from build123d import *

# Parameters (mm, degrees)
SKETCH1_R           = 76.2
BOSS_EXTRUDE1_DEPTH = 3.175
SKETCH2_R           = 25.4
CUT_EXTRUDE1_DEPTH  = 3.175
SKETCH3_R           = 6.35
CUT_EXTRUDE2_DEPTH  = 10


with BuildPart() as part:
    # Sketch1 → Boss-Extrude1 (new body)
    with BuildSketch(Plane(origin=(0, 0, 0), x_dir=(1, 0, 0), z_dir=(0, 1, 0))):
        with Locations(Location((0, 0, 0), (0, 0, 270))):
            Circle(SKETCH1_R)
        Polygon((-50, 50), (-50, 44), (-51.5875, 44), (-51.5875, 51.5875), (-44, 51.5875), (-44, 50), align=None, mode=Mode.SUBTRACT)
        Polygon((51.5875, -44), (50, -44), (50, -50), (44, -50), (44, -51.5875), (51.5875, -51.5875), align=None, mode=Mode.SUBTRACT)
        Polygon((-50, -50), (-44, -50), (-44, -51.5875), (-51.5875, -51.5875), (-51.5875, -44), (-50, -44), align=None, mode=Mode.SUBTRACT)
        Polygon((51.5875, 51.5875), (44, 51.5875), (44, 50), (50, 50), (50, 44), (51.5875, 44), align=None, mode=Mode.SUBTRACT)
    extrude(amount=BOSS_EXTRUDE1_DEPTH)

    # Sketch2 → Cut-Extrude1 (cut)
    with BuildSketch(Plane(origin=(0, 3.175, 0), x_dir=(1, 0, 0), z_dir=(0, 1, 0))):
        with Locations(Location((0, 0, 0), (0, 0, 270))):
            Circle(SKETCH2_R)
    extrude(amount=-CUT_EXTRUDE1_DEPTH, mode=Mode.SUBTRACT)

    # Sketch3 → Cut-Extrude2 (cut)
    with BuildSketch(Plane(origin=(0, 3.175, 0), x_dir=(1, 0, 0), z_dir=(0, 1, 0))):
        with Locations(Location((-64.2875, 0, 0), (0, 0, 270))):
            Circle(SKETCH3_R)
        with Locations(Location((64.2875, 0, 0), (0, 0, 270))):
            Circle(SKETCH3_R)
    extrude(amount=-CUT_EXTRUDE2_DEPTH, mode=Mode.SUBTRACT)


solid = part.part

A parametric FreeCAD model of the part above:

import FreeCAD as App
import Part
import Sketcher

V = App.Vector
Q = App.Units.Quantity

doc = App.newDocument("Part")
body = doc.addObject("PartDesign::Body", "Body")

# Sketch on XZ plane
sketch1 = body.newObject("Sketcher::SketchObject", "Sketch")
sketch1.AttachmentSupport = (doc.getObject("XZ_Plane"), [""])
sketch1.MapMode = "FlatFace"
sketch1.addGeometry([
    Part.Circle(V(0, 0, 0), V(0, 0, 1), 76.2),  # 0
    Part.LineSegment(V(-44, -50, 0), V(-50, -50, 0)),  # 1
    Part.LineSegment(V(-50, -50, 0), V(-50, -44, 0)),  # 2
    Part.LineSegment(V(-50, -44, 0), V(-51.6, -44, 0)),  # 3
    Part.LineSegment(V(-51.6, -44, 0), V(-51.6, -51.6, 0)),  # 4
    Part.LineSegment(V(-51.6, -51.6, 0), V(-44, -51.6, 0)),  # 5
    Part.LineSegment(V(-44, -51.6, 0), V(-44, -50, 0)),  # 6
    Part.LineSegment(V(-50, 44, 0), V(-50, 50, 0)),  # 7
    Part.LineSegment(V(-50, 50, 0), V(-44, 50, 0)),  # 8
    Part.LineSegment(V(-44, 50, 0), V(-44, 51.6, 0)),  # 9
    Part.LineSegment(V(-44, 51.6, 0), V(-51.6, 51.6, 0)),  # 10
    Part.LineSegment(V(-51.6, 51.6, 0), V(-51.6, 44, 0)),  # 11
    Part.LineSegment(V(-51.6, 44, 0), V(-50, 44, 0)),  # 12
    Part.LineSegment(V(44, -51.6, 0), V(51.6, -51.6, 0)),  # 13
    Part.LineSegment(V(51.6, -51.6, 0), V(51.6, -44, 0)),  # 14
    Part.LineSegment(V(51.6, -44, 0), V(50, -44, 0)),  # 15
    Part.LineSegment(V(50, -44, 0), V(50, -50, 0)),  # 16
    Part.LineSegment(V(50, -50, 0), V(44, -50, 0)),  # 17
    Part.LineSegment(V(44, -50, 0), V(44, -51.6, 0)),  # 18
    Part.LineSegment(V(50, 44, 0), V(51.6, 44, 0)),  # 19
    Part.LineSegment(V(51.6, 44, 0), V(51.6, 51.6, 0)),  # 20
    Part.LineSegment(V(51.6, 51.6, 0), V(44, 51.6, 0)),  # 21
    Part.LineSegment(V(44, 51.6, 0), V(44, 50, 0)),  # 22
    Part.LineSegment(V(44, 50, 0), V(50, 50, 0)),  # 23
    Part.LineSegment(V(50, 50, 0), V(50, 44, 0)),  # 24
], False)
sketch1.addConstraint([
    Sketcher.Constraint("Coincident", 1, 2, 2, 1),
    Sketcher.Constraint("Coincident", 2, 2, 3, 1),
    Sketcher.Constraint("Coincident", 3, 2, 4, 1),
    Sketcher.Constraint("Coincident", 4, 2, 5, 1),
    Sketcher.Constraint("Coincident", 5, 2, 6, 1),
    Sketcher.Constraint("Coincident", 6, 2, 1, 1),
    Sketcher.Constraint("Coincident", 7, 2, 8, 1),
    Sketcher.Constraint("Coincident", 8, 2, 9, 1),
    Sketcher.Constraint("Coincident", 9, 2, 10, 1),
    Sketcher.Constraint("Coincident", 10, 2, 11, 1),
    Sketcher.Constraint("Coincident", 11, 2, 12, 1),
    Sketcher.Constraint("Coincident", 12, 2, 7, 1),
    Sketcher.Constraint("Coincident", 13, 2, 14, 1),
    Sketcher.Constraint("Coincident", 14, 2, 15, 1),
    Sketcher.Constraint("Coincident", 15, 2, 16, 1),
    Sketcher.Constraint("Coincident", 16, 2, 17, 1),
    Sketcher.Constraint("Coincident", 17, 2, 18, 1),
    Sketcher.Constraint("Coincident", 18, 2, 13, 1),
    Sketcher.Constraint("Coincident", 19, 2, 20, 1),
    Sketcher.Constraint("Coincident", 20, 2, 21, 1),
    Sketcher.Constraint("Coincident", 21, 2, 22, 1),
    Sketcher.Constraint("Coincident", 22, 2, 23, 1),
    Sketcher.Constraint("Coincident", 23, 2, 24, 1),
    Sketcher.Constraint("Coincident", 24, 2, 19, 1),
    Sketcher.Constraint("Horizontal", 1),
    Sketcher.Constraint("Vertical", 2),
    Sketcher.Constraint("Horizontal", 3),
    Sketcher.Constraint("Vertical", 4),
    Sketcher.Constraint("Horizontal", 5),
    Sketcher.Constraint("Vertical", 6),
    Sketcher.Constraint("Vertical", 7),
    Sketcher.Constraint("Horizontal", 8),
    Sketcher.Constraint("Vertical", 9),
    Sketcher.Constraint("Horizontal", 10),
    Sketcher.Constraint("Vertical", 11),
    Sketcher.Constraint("Horizontal", 12),
    Sketcher.Constraint("Horizontal", 13),
    Sketcher.Constraint("Vertical", 14),
    Sketcher.Constraint("Horizontal", 15),
    Sketcher.Constraint("Vertical", 16),
    Sketcher.Constraint("Horizontal", 17),
    Sketcher.Constraint("Vertical", 18),
    Sketcher.Constraint("Horizontal", 19),
    Sketcher.Constraint("Vertical", 20),
    Sketcher.Constraint("Horizontal", 21),
    Sketcher.Constraint("Vertical", 22),
    Sketcher.Constraint("Horizontal", 23),
    Sketcher.Constraint("Vertical", 24),
    Sketcher.Constraint("Coincident", 0, 3, -1, 1),
    Sketcher.Constraint("Symmetric", 10, 2, 13, 2, -1, 1),
    Sketcher.Constraint("Symmetric", 12, 2, 15, 2, -1, 1),
    Sketcher.Constraint("Symmetric", 8, 2, 17, 2, -1, 1),
    Sketcher.Constraint("Symmetric", 3, 2, 19, 2, -1, 1),
    Sketcher.Constraint("Symmetric", 5, 2, 21, 2, -1, 1),
    Sketcher.Constraint("Symmetric", 1, 2, 23, 2, -1, 1),
    Sketcher.Constraint("Symmetric", 4, 2, 13, 2, -2),
    Sketcher.Constraint("Symmetric", 2, 2, 15, 2, -2),
    Sketcher.Constraint("Symmetric", 6, 2, 17, 2, -2),
    Sketcher.Constraint("Equal", 23, 2),
    Sketcher.Constraint("Equal", 21, 4),
    Sketcher.Constraint("Diameter", 0, Q("6 in")),
    Sketcher.Constraint("DistanceX", 3, 2, 3, 1, Q("0.0625 in")),
    Sketcher.Constraint("DistanceX", 1, 2, 1, 1, 6.0),
    Sketcher.Constraint("DistanceX", 1, 2, -1, 1, 50.0),
    Sketcher.Constraint("DistanceY", 1, 2, -1, 1, 50.0),
])
pad1 = body.newObject("PartDesign::Pad", "Pad")
pad1.Profile = sketch1
pad1.Length = Q("0.125 in")
pad1.Reversed = True

# Sketch on XZ plane
sketch2 = body.newObject("Sketcher::SketchObject", "Sketch001")
sketch2.AttachmentSupport = (doc.getObject("XZ_Plane"), [""])
sketch2.MapMode = "FlatFace"
sketch2.AttachmentOffset = App.Placement(V(0, 0, -0.125 * 25.4), App.Rotation())
sketch2.addGeometry(Part.Circle(V(0, 0, 0), V(0, 0, 1), 25), False)
sketch2.addConstraint([
    Sketcher.Constraint("Coincident", 0, 3, -1, 1),
    Sketcher.Constraint("Diameter", 0, Q("2 in")),
])
pocket1 = body.newObject("PartDesign::Pocket", "Pocket")
pocket1.Profile = sketch2
pocket1.Length = Q("0.125 in")
pocket1.Reversed = True

# Sketch on XZ plane
sketch3 = body.newObject("Sketcher::SketchObject", "Sketch002")
sketch3.AttachmentSupport = (doc.getObject("XZ_Plane"), [""])
sketch3.MapMode = "FlatFace"
sketch3.AttachmentOffset = App.Placement(V(0, 0, -0.125 * 25.4), App.Rotation())
sketch3.addGeometry([
    Part.Circle(V(-64, 0, 0), V(0, 0, 1), 6),
    Part.Circle(V(64, 0, 0), V(0, 0, 1), 6),
], False)
sketch3.addConstraint([
    Sketcher.Constraint("Equal", 0, 1),
    Sketcher.Constraint("Symmetric", 0, 3, 1, 3, -1, 1),
    Sketcher.Constraint("PointOnObject", 0, 3, -1),
    Sketcher.Constraint("Diameter", 0, Q("0.5 in")),
    Sketcher.Constraint("DistanceX", 0, 3, -1, 1, 64.2875),
])
pocket2 = body.newObject("PartDesign::Pocket", "Pocket001")
pocket2.Profile = sketch3
pocket2.Length = 10
pocket2.Reversed = True

doc.recompute()
